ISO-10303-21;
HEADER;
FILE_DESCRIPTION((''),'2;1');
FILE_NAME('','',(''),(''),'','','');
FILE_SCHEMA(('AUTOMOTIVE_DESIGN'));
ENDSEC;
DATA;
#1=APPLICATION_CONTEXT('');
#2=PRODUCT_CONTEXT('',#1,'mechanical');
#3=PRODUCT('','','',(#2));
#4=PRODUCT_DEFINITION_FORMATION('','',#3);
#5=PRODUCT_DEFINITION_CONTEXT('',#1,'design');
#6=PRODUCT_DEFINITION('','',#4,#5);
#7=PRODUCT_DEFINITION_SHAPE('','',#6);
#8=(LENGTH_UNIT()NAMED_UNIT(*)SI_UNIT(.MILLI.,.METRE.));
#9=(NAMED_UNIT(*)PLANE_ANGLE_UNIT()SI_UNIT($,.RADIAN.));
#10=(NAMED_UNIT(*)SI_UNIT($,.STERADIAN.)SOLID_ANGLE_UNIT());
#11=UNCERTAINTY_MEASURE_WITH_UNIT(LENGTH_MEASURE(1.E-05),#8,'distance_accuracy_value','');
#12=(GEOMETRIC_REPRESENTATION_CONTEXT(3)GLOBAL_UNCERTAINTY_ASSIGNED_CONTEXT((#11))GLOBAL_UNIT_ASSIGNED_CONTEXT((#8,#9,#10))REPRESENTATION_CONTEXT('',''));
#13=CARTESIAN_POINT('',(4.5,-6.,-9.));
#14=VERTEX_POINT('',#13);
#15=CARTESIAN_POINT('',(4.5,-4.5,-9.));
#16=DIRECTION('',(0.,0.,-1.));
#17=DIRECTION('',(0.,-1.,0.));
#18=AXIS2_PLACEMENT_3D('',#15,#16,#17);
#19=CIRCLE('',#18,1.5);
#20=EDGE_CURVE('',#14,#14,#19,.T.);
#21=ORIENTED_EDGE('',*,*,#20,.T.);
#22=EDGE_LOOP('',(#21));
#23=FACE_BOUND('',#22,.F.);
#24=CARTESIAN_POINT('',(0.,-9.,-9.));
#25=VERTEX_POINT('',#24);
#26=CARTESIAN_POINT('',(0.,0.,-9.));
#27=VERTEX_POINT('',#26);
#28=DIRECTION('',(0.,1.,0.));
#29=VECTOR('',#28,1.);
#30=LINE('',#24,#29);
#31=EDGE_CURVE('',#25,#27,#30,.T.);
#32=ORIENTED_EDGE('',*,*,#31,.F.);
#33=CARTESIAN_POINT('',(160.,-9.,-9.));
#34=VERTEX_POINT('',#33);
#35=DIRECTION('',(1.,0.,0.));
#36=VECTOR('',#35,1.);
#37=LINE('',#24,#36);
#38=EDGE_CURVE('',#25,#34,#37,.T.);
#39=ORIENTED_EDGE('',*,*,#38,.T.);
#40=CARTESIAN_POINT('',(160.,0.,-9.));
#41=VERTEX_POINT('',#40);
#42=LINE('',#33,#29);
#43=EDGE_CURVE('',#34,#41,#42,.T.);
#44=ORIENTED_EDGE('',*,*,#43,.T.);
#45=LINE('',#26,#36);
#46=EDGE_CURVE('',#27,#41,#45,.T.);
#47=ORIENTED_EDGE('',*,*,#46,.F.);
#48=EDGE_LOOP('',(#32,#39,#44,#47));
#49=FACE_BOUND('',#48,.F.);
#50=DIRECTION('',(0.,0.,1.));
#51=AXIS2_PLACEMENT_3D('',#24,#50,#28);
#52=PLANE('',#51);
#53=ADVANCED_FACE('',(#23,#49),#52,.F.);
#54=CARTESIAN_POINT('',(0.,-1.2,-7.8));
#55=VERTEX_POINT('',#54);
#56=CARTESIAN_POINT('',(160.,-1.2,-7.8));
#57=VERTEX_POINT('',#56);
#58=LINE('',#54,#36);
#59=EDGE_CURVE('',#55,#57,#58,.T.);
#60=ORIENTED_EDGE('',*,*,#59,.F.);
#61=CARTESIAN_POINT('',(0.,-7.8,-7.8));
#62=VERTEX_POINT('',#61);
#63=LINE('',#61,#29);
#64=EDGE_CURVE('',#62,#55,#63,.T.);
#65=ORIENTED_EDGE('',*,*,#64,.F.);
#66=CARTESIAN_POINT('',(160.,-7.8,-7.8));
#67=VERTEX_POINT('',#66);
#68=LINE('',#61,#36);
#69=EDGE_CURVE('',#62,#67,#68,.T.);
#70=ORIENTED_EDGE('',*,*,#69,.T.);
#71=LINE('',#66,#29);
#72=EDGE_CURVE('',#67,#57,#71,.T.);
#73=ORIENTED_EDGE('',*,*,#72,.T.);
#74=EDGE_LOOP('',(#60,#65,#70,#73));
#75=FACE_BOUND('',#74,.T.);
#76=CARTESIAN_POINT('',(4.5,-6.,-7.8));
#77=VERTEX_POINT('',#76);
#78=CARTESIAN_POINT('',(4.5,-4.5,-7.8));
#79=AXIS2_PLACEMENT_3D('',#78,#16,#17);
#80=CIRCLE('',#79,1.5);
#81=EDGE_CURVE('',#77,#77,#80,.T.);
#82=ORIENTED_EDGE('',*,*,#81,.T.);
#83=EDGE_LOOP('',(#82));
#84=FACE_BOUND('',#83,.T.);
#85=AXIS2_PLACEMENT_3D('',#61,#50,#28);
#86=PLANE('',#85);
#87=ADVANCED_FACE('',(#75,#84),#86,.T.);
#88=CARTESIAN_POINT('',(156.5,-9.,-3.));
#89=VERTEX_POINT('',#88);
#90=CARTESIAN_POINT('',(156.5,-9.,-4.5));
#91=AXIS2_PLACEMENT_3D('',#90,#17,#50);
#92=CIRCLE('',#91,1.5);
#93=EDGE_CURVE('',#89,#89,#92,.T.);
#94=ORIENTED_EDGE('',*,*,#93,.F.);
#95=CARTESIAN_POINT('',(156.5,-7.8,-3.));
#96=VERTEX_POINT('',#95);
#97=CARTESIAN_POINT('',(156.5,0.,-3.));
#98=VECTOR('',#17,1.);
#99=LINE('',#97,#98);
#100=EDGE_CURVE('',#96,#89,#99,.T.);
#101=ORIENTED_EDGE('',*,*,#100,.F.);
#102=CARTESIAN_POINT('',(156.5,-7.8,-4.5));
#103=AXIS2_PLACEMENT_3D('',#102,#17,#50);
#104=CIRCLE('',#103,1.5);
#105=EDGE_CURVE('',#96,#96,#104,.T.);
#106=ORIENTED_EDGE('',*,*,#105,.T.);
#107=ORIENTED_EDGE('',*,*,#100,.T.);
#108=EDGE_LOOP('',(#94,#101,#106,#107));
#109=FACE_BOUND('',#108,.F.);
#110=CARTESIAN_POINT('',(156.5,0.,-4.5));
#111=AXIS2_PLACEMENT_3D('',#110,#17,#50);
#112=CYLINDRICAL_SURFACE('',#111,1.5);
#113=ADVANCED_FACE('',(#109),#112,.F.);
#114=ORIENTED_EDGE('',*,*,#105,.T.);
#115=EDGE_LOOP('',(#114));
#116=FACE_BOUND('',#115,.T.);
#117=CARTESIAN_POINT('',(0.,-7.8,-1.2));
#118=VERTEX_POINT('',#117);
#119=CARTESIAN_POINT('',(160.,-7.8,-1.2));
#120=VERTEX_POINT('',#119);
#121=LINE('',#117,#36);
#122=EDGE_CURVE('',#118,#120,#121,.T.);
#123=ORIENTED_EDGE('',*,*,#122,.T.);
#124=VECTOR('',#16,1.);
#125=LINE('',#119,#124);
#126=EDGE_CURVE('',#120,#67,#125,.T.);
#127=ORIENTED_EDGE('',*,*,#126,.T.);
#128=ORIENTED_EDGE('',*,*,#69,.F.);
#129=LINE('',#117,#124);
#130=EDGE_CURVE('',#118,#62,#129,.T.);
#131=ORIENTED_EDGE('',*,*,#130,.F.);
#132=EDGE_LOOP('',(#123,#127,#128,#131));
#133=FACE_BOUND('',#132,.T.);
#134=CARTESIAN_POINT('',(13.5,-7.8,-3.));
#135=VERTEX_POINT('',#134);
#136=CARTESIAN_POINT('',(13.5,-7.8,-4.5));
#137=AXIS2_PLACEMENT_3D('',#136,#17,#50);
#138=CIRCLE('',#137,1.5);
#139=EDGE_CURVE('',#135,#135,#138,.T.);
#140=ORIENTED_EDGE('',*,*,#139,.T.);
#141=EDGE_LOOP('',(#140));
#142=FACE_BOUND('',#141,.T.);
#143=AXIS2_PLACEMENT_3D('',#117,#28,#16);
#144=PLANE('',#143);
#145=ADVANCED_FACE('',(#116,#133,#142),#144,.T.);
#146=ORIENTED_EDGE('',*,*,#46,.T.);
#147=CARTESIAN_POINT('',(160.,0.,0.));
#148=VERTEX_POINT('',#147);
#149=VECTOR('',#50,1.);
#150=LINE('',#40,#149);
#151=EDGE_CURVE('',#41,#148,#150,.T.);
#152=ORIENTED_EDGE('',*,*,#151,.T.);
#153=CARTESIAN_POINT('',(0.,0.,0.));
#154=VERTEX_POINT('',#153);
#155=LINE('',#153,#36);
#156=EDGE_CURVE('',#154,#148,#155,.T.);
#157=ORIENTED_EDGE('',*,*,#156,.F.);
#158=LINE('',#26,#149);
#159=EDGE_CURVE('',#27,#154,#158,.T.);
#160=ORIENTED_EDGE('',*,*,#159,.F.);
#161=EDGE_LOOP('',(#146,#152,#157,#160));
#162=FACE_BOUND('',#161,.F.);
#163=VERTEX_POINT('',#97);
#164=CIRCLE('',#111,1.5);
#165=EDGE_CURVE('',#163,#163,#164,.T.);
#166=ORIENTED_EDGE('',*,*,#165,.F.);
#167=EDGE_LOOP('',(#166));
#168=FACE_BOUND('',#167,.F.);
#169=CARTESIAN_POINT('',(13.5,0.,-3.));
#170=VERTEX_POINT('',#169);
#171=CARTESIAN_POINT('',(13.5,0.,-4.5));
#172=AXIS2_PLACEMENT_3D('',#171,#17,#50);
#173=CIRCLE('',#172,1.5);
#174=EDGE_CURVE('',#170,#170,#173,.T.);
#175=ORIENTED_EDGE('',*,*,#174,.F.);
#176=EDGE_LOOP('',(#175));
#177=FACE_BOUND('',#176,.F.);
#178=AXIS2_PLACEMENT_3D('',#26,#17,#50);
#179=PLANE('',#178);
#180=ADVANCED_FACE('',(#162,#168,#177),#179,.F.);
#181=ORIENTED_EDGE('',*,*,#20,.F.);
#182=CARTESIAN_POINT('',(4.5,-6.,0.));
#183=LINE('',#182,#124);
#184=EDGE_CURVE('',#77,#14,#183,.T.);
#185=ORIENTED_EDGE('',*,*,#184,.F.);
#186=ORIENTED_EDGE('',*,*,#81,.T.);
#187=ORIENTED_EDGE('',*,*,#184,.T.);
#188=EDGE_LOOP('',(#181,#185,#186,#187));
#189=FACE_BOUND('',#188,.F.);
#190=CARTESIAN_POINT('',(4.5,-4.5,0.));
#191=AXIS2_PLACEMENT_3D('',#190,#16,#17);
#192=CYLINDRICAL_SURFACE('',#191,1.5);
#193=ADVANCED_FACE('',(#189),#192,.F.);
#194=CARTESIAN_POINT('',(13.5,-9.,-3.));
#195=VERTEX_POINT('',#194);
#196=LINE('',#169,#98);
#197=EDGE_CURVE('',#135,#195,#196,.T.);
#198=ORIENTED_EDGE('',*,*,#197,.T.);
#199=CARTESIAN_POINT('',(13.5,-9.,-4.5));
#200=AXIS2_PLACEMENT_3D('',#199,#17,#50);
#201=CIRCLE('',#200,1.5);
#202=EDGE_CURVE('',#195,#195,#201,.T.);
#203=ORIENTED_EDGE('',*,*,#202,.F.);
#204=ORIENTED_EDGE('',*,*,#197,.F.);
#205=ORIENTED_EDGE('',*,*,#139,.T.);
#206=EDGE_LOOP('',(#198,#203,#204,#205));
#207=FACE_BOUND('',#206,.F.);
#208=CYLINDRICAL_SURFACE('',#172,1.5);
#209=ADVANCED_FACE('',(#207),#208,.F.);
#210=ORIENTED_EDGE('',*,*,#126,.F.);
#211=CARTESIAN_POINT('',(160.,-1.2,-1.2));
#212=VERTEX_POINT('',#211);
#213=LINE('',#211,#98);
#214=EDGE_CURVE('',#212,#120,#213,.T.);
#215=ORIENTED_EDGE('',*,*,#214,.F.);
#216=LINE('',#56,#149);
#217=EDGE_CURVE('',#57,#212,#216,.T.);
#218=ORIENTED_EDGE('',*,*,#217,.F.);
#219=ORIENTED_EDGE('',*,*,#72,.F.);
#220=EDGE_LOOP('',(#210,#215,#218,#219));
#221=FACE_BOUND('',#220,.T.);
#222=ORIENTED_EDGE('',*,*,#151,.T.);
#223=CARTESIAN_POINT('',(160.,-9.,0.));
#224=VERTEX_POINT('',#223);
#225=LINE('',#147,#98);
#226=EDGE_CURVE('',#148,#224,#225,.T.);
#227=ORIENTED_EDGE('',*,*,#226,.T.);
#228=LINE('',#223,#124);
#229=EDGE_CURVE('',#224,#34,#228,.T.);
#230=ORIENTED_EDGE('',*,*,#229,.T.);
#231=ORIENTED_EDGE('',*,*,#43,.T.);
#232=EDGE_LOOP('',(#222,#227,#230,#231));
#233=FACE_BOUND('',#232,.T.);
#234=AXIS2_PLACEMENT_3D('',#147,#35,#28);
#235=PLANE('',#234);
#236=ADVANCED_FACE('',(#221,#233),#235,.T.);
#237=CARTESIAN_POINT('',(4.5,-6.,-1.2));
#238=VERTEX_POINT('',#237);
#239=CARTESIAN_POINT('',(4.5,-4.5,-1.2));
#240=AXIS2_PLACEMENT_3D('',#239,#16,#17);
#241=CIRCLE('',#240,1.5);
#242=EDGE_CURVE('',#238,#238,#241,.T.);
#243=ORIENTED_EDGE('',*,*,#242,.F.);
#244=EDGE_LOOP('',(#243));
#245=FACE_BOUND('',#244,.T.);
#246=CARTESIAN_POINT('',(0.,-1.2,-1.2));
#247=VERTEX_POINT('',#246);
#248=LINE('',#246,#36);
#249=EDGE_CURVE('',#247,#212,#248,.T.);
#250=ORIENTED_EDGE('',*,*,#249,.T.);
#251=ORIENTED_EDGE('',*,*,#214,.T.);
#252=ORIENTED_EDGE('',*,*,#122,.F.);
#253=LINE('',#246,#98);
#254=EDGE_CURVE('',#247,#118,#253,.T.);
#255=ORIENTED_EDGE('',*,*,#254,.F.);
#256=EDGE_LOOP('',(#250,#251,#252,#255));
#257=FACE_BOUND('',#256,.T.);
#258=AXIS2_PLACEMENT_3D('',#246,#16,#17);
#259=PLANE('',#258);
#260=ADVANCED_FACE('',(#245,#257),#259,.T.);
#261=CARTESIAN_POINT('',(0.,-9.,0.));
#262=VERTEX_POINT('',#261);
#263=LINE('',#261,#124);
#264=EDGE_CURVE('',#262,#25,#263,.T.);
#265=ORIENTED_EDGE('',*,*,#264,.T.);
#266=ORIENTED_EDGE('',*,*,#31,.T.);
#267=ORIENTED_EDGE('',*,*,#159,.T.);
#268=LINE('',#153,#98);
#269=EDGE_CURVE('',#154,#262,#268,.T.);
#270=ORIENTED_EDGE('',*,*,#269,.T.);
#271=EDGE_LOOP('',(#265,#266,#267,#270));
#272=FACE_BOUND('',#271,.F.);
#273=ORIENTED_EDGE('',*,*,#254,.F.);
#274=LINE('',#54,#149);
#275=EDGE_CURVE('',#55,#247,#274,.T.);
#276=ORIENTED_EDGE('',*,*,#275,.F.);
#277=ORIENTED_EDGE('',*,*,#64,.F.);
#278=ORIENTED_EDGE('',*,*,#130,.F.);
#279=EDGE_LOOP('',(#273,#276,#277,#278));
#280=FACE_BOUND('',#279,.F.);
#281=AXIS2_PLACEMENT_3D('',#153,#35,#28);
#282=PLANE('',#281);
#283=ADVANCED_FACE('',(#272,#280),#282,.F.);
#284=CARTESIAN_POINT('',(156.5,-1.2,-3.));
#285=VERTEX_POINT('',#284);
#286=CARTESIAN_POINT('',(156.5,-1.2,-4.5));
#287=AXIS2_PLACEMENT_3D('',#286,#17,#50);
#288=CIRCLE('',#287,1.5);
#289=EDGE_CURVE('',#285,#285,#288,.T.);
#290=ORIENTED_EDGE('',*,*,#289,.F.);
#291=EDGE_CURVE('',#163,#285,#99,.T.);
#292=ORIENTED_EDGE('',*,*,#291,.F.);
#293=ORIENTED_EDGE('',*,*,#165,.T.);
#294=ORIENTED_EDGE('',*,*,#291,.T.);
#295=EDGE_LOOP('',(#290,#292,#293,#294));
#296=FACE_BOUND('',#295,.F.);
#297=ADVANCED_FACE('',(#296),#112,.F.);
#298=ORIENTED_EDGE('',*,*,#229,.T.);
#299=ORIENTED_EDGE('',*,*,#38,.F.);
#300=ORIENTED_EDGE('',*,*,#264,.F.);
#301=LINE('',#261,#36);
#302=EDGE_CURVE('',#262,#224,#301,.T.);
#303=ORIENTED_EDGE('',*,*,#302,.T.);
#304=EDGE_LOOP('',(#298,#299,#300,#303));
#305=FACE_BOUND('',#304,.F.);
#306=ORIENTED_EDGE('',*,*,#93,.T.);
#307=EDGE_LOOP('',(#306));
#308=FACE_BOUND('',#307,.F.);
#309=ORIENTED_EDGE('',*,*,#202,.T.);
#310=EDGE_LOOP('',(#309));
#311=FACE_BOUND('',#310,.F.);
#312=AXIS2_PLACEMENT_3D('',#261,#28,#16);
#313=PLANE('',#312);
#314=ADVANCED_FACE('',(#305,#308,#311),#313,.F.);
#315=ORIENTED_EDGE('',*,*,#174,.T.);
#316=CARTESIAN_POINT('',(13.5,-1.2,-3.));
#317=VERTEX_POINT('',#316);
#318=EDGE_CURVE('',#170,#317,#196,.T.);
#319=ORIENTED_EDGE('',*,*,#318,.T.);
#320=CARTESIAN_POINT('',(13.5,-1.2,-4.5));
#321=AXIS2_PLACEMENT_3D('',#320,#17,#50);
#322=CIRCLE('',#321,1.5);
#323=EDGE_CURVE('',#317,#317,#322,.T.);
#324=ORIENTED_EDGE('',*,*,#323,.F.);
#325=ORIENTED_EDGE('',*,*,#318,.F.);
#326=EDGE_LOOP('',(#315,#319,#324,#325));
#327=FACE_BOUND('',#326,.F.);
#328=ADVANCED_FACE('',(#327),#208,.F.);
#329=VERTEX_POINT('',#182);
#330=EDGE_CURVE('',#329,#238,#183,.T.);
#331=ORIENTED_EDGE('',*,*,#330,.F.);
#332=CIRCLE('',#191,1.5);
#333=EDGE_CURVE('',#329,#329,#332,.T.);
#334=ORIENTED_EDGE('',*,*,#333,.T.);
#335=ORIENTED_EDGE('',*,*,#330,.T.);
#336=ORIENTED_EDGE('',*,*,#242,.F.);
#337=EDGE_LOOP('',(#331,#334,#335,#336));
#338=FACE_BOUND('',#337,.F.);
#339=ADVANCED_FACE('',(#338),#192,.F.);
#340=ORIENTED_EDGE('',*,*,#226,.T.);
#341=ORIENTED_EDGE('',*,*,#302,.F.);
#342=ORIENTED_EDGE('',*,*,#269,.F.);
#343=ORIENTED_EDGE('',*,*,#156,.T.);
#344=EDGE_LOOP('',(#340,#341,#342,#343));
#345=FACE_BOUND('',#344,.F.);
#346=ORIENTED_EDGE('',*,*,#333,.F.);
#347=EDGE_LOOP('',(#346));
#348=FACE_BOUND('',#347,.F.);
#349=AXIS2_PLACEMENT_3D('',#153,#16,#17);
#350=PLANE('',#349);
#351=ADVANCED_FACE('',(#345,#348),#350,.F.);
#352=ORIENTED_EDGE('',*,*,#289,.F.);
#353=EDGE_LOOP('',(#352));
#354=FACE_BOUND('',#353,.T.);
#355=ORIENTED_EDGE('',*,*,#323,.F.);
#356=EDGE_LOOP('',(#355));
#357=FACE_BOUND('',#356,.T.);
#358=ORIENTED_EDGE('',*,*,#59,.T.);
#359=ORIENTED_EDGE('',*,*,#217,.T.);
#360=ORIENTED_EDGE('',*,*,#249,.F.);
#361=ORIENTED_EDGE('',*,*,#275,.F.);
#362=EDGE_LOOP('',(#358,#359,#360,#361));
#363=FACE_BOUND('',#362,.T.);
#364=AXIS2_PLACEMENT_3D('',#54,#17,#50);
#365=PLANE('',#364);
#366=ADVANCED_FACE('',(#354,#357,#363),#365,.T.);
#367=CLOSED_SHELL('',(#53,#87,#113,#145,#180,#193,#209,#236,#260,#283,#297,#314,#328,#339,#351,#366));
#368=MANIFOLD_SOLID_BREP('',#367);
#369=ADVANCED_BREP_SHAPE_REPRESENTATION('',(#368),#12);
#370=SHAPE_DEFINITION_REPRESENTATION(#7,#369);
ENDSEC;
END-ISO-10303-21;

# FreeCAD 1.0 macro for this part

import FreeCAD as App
import Part
import Sketcher

V = App.Vector
Q = App.Units.Quantity


def add_polygon(sketch, points):
    """Adds a closed chain of lines whose ends are joined by coincident constraints."""
    first, n = sketch.GeometryCount, len(points)
    for a, b in zip(points, points[1:] + points[:1]):
        sketch.addGeometry(Part.LineSegment(App.Vector(*a, 0), App.Vector(*b, 0)), False)
    for i in range(n):
        sketch.addConstraint(Sketcher.Constraint("Coincident", first + i, 2, first + (i + 1) % n, 1))

doc = App.newDocument("Part")
body = doc.addObject("PartDesign::Body", "Body")

# Sketch on YZ plane
sketch1 = body.newObject("Sketcher::SketchObject", "Sketch")
sketch1.AttachmentSupport = (doc.getObject("YZ_Plane"), [""])
sketch1.MapMode = "FlatFace"
add_polygon(sketch1, [(0, -9), (0, 0), (-9, 0), (-9, -9)])  # lines 0-3
add_polygon(sketch1, [(-7.8, -1.2), (-1.2, -1.2), (-1.2, -7.8), (-7.8, -7.8)])  # lines 4-7
sketch1.addConstraint([
    Sketcher.Constraint("Vertical", 0),
    Sketcher.Constraint("Horizontal", 1),
    Sketcher.Constraint("Vertical", 2),
    Sketcher.Constraint("Horizontal", 3),
    Sketcher.Constraint("Horizontal", 4),
    Sketcher.Constraint("Vertical", 5),
    Sketcher.Constraint("Horizontal", 6),
    Sketcher.Constraint("Vertical", 7),
    Sketcher.Constraint("Coincident", 0, 2, -1, 1),
    Sketcher.Constraint("Equal", 3, 0),
    Sketcher.Constraint("Equal", 6, 5),
    Sketcher.Constraint("DistanceX", 1, 2, 1, 1, Q("9 mm")),
    Sketcher.Constraint("DistanceX", 4, 1, 4, 2, Q("6.6 mm")),
    Sketcher.Constraint("DistanceX", 4, 2, -1, 1, Q("1.2 mm")),
    Sketcher.Constraint("DistanceY", 4, 2, -1, 1, Q("1.2 mm")),
])
pad1 = body.newObject("PartDesign::Pad", "Pad")
pad1.Profile = sketch1
pad1.Length = 160

# Sketch on XZ plane
sketch2 = body.newObject("Sketcher::SketchObject", "Sketch001")
sketch2.AttachmentSupport = (doc.getObject("XZ_Plane"), [""])
sketch2.MapMode = "FlatFace"
sketch2.addGeometry([
    Part.Circle(V(13.5, -4.5, 0), V(0, 0, 1), 1.5),
    Part.Circle(V(156.5, -4.5, 0), V(0, 0, 1), 1.5),
], False)
sketch2.addConstraint([
    Sketcher.Constraint("Equal", 0, 1),
    Sketcher.Constraint("Horizontal", 0, 3, 1, 3),
    Sketcher.Constraint("Diameter", 0, Q("3 mm")),
    Sketcher.Constraint("DistanceX", 0, 3, 1, 3, Q("143 mm")),
    Sketcher.Constraint("DistanceX", -1, 1, 0, 3, Q("13.5 mm")),
    Sketcher.Constraint("DistanceY", 0, 3, -1, 1, Q("4.5 mm")),
])
doc.recompute()
hole = body.newObject("PartDesign::Hole", "Hole")
hole.Profile = sketch2
hole.ThreadType = "None"
hole.Diameter = 3
hole.DepthType = "ThroughAll"
hole.Reversed = True

# Sketch on XY plane
sketch3 = body.newObject("Sketcher::SketchObject", "Sketch002")
sketch3.AttachmentSupport = (doc.getObject("XY_Plane"), [""])
sketch3.MapMode = "FlatFace"
sketch3.addGeometry(Part.Circle(V(4.5, -4.5, 0), V(0, 0, 1), 1.5), False)
sketch3.addConstraint([
    Sketcher.Constraint("Diameter", 0, Q("3 mm")),
    Sketcher.Constraint("DistanceX", -1, 1, 0, 3, Q("4.5 mm")),
    Sketcher.Constraint("DistanceY", 0, 3, -1, 1, Q("4.5 mm")),
])
doc.recompute()
hole2 = body.newObject("PartDesign::Hole", "Hole001")
hole2.Profile = sketch3
hole2.ThreadType = "None"
hole2.Diameter = 3
hole2.DepthType = "ThroughAll"

doc.recompute()
